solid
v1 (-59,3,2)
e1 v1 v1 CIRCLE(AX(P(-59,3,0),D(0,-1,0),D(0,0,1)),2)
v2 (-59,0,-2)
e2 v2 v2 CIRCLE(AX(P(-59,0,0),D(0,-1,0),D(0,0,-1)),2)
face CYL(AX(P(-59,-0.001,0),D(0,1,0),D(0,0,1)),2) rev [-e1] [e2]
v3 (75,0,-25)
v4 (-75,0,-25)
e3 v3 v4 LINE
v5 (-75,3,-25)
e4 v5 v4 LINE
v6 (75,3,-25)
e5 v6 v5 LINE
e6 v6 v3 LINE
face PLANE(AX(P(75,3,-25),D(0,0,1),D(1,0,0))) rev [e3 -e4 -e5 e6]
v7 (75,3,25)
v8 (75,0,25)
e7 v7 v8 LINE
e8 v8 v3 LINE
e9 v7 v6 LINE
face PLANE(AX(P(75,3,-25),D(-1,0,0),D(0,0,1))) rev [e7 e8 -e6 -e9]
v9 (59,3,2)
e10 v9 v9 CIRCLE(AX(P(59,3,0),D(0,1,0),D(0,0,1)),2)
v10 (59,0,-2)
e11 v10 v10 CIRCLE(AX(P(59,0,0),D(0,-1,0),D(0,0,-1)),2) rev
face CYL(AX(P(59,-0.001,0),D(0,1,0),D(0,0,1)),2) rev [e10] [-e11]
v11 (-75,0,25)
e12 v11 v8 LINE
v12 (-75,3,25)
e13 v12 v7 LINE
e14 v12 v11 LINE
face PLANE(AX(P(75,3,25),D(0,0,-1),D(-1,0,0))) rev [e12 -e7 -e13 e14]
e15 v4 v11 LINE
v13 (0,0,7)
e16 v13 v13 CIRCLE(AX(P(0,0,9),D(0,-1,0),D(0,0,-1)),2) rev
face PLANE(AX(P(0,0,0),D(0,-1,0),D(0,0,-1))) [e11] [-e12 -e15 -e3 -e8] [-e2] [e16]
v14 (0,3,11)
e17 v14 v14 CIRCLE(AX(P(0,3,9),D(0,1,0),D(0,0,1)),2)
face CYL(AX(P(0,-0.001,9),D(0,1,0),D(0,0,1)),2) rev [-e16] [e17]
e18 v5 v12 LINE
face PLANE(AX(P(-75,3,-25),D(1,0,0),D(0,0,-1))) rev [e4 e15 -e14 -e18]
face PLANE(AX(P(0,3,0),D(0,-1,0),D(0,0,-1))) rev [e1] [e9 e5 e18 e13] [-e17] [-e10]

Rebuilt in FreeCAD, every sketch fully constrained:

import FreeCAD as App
import Part
import Sketcher
from FreeCAD import Vector

doc = App.newDocument("Part")
body = doc.addObject("PartDesign::Body", "Body")

# Sketch on XZ plane
sketch1 = body.newObject("Sketcher::SketchObject", "Sketch")
sketch1.AttachmentSupport = (doc.getObject("XZ_Plane"), [""])
sketch1.MapMode = "FlatFace"
sketch1.addGeometry([
    Part.LineSegment(Vector(-75, -25, 0), Vector(-75, 25, 0)),
    Part.LineSegment(Vector(-75, 25, 0), Vector(75, 25, 0)),
    Part.LineSegment(Vector(75, 25, 0), Vector(75, -25, 0)),
    Part.LineSegment(Vector(75, -25, 0), Vector(-75, -25, 0)),
], False)
sketch1.addConstraint([
    Sketcher.Constraint("Coincident", 0, 2, 1, 1),
    Sketcher.Constraint("Coincident", 1, 2, 2, 1),
    Sketcher.Constraint("Coincident", 2, 2, 3, 1),
    Sketcher.Constraint("Coincident", 3, 2, 0, 1),
    Sketcher.Constraint("Vertical", 0),
    Sketcher.Constraint("Horizontal", 1),
    Sketcher.Constraint("Vertical", 2),
    Sketcher.Constraint("Horizontal", 3),
    Sketcher.Constraint("Symmetric", 0, 2, 2, 2, -1, 1),
    Sketcher.Constraint("DistanceX", 1, 1, 1, 2, 150.0),
    Sketcher.Constraint("DistanceY", 0, 1, 0, 2, 50.0),
])
pad1 = body.newObject("PartDesign::Pad", "Pad")
pad1.Profile = sketch1
pad1.Length = 3
pad1.Reversed = True

# Sketch on XZ plane
sketch2 = body.newObject("Sketcher::SketchObject", "Sketch001")
sketch2.AttachmentSupport = (doc.getObject("XZ_Plane"), [""])
sketch2.MapMode = "FlatFace"
sketch2.AttachmentOffset = App.Placement(Vector(0, 0, -3), App.Rotation())
sketch2.addGeometry(Part.Circle(Vector(59, 0, 0), Vector(0, 0, 1), 2), False)
sketch2.addConstraint([
    Sketcher.Constraint("PointOnObject", 0, 3, -1),
    Sketcher.Constraint("Diameter", 0, 4.0),
    Sketcher.Constraint("DistanceX", -1, 1, 0, 3, 59.0),
])
pocket1 = body.newObject("PartDesign::Pocket", "Pocket")
pocket1.Profile = sketch2
pocket1.Length = 3
pocket1.Reversed = True
doc.recompute()

mirrored = body.newObject("PartDesign::Mirrored", "Mirrored")
mirrored.Originals = [pocket1]
mirrored.MirrorPlane = (doc.getObject("YZ_Plane"), [""])
body.Tip = mirrored

# Sketch on XZ plane
sketch3 = body.newObject("Sketcher::SketchObject", "Sketch002")
sketch3.AttachmentSupport = (doc.getObject("XZ_Plane"), [""])
sketch3.MapMode = "FlatFace"
sketch3.AttachmentOffset = App.Placement(Vector(0, 0, -3), App.Rotation())
sketch3.addGeometry(Part.Circle(Vector(0, 9, 0), Vector(0, 0, 1), 2), False)
sketch3.addConstraint([
    Sketcher.Constraint("PointOnObject", 0, 3, -2),
    Sketcher.Constraint("Diameter", 0, 4.0),
    Sketcher.Constraint("DistanceY", -1, 1, 0, 3, 9.0),
])
pocket2 = body.newObject("PartDesign::Pocket", "Pocket001")
pocket2.Profile = sketch3
pocket2.Type = "UpToFirst"
pocket2.Reversed = True

doc.recompute()
